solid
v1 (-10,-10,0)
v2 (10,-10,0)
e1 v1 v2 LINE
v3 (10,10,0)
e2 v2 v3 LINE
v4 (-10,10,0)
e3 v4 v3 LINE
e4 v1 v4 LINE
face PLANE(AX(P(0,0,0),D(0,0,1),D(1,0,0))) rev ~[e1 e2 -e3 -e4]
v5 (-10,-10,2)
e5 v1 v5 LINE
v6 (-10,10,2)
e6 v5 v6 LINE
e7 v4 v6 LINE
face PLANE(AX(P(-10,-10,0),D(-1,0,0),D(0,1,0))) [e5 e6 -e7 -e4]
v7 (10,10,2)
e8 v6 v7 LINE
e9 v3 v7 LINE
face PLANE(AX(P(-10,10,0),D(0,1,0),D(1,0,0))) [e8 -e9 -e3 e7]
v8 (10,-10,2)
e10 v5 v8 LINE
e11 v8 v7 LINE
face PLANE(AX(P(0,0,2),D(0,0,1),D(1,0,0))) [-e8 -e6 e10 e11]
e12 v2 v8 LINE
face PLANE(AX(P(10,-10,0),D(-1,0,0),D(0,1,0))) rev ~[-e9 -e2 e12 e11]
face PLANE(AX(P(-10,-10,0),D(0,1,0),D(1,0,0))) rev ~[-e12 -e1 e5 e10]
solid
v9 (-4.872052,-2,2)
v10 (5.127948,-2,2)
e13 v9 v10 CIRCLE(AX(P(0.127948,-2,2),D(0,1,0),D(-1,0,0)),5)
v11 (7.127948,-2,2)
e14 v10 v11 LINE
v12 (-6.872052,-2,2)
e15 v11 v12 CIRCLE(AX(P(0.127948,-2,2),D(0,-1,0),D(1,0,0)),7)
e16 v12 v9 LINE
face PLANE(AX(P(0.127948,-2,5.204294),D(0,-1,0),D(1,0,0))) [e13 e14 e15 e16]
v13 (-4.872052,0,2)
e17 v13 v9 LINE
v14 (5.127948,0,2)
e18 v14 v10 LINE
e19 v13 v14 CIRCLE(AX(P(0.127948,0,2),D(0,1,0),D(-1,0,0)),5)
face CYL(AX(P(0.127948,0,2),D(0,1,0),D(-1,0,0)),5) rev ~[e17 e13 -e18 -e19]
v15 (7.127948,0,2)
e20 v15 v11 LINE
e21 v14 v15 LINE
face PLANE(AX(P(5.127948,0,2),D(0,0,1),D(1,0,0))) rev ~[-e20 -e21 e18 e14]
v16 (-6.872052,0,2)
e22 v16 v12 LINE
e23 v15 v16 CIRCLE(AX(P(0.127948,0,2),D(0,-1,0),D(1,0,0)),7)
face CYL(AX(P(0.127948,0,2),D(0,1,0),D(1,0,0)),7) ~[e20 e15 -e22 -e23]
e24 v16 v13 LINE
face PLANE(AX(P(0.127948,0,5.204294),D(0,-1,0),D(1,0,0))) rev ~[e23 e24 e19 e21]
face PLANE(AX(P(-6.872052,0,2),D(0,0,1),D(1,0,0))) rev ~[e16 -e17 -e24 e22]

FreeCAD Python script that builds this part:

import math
import FreeCAD as App
import Part
import Sketcher
from FreeCAD import Vector
Q = App.Units.Quantity

doc = App.newDocument("Part")
body = doc.addObject("PartDesign::Body", "Body")

# Sketch on XY plane
sketch1 = doc.addObject("Sketcher::SketchObject", "Sketch")
body.addObject(sketch1)
sketch1.AttachmentSupport = (doc.XY_Plane, [""])
sketch1.MapMode = "FlatFace"
sketch1.addGeometry(Part.LineSegment(Vector(-10, 10, 0), Vector(-10, -10, 0)), False)
sketch1.addGeometry(Part.LineSegment(Vector(-10, -10, 0), Vector(10, -10, 0)), False)
sketch1.addGeometry(Part.LineSegment(Vector(10, -10, 0), Vector(10, 10, 0)), False)
sketch1.addGeometry(Part.LineSegment(Vector(10, 10, 0), Vector(-10, 10, 0)), False)
sketch1.addConstraint(Sketcher.Constraint("Coincident", 0, 2, 1, 1))
sketch1.addConstraint(Sketcher.Constraint("Coincident", 1, 2, 2, 1))
sketch1.addConstraint(Sketcher.Constraint("Coincident", 2, 2, 3, 1))
sketch1.addConstraint(Sketcher.Constraint("Coincident", 3, 2, 0, 1))
sketch1.addConstraint(Sketcher.Constraint("Vertical", 0))
sketch1.addConstraint(Sketcher.Constraint("Horizontal", 1))
sketch1.addConstraint(Sketcher.Constraint("Vertical", 2))
sketch1.addConstraint(Sketcher.Constraint("Horizontal", 3))
sketch1.addConstraint(Sketcher.Constraint("Symmetric", 0, 2, 2, 2, -1, 1))
sketch1.addConstraint(Sketcher.Constraint("Equal", 3, 0))
sketch1.addConstraint(Sketcher.Constraint("DistanceX", 1, 1, 1, 2, Q("20 mm")))
pad1 = doc.addObject("PartDesign::Pad", "Pad")
body.addObject(pad1)
pad1.Profile = sketch1
pad1.Length = 2
body2 = doc.addObject("PartDesign::Body", "Body001")

# Sketch on XZ plane
sketch2 = doc.addObject("Sketcher::SketchObject", "Sketch001")
body2.addObject(sketch2)
sketch2.AttachmentSupport = (doc.getObject("XZ_Plane001"), [""])
sketch2.MapMode = "FlatFace"
sketch2.addGeometry(Part.ArcOfCircle(Part.Circle(Vector(0.1, 2, 0), Vector(0, 0, 1), 5), math.radians(0), math.radians(180)), False)
sketch2.addGeometry(Part.LineSegment(Vector(5.1, 2, 0), Vector(7.1, 2, 0)), False)
sketch2.addGeometry(Part.ArcOfCircle(Part.Circle(Vector(0.1, 2, 0), Vector(0, 0, 1), 7), math.radians(0), math.radians(180)), False)
sketch2.addGeometry(Part.LineSegment(Vector(-6.9, 2, 0), Vector(-4.9, 2, 0)), False)
sketch2.addConstraint(Sketcher.Constraint("Coincident", 0, 1, 1, 1))
sketch2.addConstraint(Sketcher.Constraint("Coincident", 1, 2, 2, 1))
sketch2.addConstraint(Sketcher.Constraint("Coincident", 2, 2, 3, 1))
sketch2.addConstraint(Sketcher.Constraint("Coincident", 3, 2, 0, 2))
sketch2.addConstraint(Sketcher.Constraint("Horizontal", 1))
sketch2.addConstraint(Sketcher.Constraint("Horizontal", 3))
sketch2.addConstraint(Sketcher.Constraint("Coincident", 2, 3, 0, 3))
sketch2.addConstraint(Sketcher.Constraint("Horizontal", 2, 3, 0, 1))
sketch2.addConstraint(Sketcher.Constraint("Horizontal", 1, 2, 2, 2))
sketch2.addConstraint(Sketcher.Constraint("Radius", 0, Q("5 mm")))
sketch2.addConstraint(Sketcher.Constraint("Radius", 2, Q("7 mm")))
sketch2.addConstraint(Sketcher.Constraint("DistanceY", -1, 1, 0, 3, Q("2 mm")))
sketch2.addConstraint(Sketcher.Constraint("DistanceX", -1, 1, 0, 3, Q("0.127948 mm")))
pad2 = doc.addObject("PartDesign::Pad", "Pad001")
body2.addObject(pad2)
pad2.Profile = sketch2
pad2.Length = 2

doc.recompute()
